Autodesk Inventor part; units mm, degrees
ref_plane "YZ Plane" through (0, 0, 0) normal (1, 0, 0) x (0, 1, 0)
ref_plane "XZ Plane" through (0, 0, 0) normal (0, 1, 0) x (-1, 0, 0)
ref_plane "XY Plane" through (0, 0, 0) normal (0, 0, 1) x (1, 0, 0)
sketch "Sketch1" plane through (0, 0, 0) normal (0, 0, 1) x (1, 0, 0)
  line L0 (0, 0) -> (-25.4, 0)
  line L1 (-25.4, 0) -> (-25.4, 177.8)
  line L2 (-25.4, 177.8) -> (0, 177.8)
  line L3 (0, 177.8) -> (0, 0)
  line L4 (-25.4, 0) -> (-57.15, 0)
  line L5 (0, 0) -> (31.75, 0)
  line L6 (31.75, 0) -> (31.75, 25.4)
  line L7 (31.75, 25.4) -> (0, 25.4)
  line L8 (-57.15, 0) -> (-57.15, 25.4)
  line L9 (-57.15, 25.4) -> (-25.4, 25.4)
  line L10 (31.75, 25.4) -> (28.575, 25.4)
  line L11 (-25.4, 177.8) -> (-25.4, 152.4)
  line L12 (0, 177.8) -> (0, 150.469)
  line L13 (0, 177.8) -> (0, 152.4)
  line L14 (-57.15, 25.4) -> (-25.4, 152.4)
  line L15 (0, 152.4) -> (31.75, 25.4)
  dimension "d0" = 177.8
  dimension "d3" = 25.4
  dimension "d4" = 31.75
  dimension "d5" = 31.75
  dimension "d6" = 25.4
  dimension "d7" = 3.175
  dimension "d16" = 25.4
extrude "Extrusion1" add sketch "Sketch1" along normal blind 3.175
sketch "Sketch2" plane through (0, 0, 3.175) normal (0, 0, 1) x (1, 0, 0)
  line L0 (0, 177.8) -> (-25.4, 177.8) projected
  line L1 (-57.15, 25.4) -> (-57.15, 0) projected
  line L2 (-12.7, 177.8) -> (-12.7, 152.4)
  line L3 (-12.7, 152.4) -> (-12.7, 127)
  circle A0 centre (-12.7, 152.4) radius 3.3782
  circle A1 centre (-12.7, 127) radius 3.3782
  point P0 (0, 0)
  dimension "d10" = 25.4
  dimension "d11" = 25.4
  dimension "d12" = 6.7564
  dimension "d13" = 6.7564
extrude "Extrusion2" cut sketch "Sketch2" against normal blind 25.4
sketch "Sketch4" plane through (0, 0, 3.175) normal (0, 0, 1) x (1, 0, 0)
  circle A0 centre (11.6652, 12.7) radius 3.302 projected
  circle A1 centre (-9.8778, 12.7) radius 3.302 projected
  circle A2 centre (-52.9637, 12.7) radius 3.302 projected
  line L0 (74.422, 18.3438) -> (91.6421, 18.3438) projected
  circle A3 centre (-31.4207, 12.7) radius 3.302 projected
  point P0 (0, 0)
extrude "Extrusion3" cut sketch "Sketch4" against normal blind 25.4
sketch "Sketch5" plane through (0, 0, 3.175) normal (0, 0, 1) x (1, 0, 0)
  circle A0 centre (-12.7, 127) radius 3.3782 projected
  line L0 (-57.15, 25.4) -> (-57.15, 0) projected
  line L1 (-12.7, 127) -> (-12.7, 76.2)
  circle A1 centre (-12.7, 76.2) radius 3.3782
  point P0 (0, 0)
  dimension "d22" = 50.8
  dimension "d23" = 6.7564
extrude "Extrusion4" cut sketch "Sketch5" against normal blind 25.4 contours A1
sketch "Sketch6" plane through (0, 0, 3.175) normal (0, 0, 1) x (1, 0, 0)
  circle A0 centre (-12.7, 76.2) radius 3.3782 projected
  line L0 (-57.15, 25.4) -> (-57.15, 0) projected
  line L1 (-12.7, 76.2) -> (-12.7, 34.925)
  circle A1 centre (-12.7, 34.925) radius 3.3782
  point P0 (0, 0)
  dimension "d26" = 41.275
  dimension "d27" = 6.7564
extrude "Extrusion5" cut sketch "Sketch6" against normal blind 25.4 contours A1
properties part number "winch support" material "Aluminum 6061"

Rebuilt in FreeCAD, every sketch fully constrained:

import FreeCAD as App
import Part
import Sketcher

V = App.Vector
Q = App.Units.Quantity


def add_polygon(sketch, points):
    """Adds a closed chain of lines whose ends are joined by coincident constraints."""
    first, n = sketch.GeometryCount, len(points)
    for a, b in zip(points, points[1:] + points[:1]):
        sketch.addGeometry(Part.LineSegment(App.Vector(*a, 0), App.Vector(*b, 0)), False)
    for i in range(n):
        sketch.addConstraint(Sketcher.Constraint("Coincident", first + i, 2, first + (i + 1) % n, 1))

doc = App.newDocument("Part")
body = doc.addObject("PartDesign::Body", "Body")

# Sketch on XY plane
sketch1 = doc.addObject("Sketcher::SketchObject", "Sketch")
body.addObject(sketch1)
sketch1.AttachmentSupport = (doc.XY_Plane, [""])
sketch1.MapMode = "FlatFace"
add_polygon(sketch1, [(31.75, 0), (31.75, 25.4), (0, 152.4), (0, 177.8), (-25.4, 177.8), (-25.4, 152.4), (-57.15, 25.4), (-57.15, 0)])  # lines 0-7
sketch1.addConstraint([
    Sketcher.Constraint("Vertical", 0),
    Sketcher.Constraint("Vertical", 2),
    Sketcher.Constraint("Horizontal", 3),
    Sketcher.Constraint("Vertical", 4),
    Sketcher.Constraint("Vertical", 6),
    Sketcher.Constraint("Horizontal", 7),
    Sketcher.Constraint("PointOnObject", 1, 2, -2),
    Sketcher.Constraint("PointOnObject", 6, 2, -1),
    Sketcher.Constraint("Horizontal", 1, 2, 4, 2),
    Sketcher.Constraint("Horizontal", 0, 2, 5, 2),
    Sketcher.Constraint("Equal", 3, 0),
    Sketcher.Constraint("Equal", 0, 2),
    Sketcher.Constraint("Equal", 1, 5),
    Sketcher.Constraint("DistanceX", 3, 2, 3, 1, Q("1 in")),
    Sketcher.Constraint("DistanceY", -1, 1, 2, 2, Q("7 in")),
    Sketcher.Constraint("DistanceX", -1, 1, 0, 2, Q("1.25 in")),
])
pad1 = doc.addObject("PartDesign::Pad", "Pad")
body.addObject(pad1)
pad1.Profile = sketch1
pad1.Length = Q("0.125 in")

# Sketch on XY plane
sketch2 = doc.addObject("Sketcher::SketchObject", "Sketch001")
body.addObject(sketch2)
sketch2.AttachmentSupport = (doc.XY_Plane, [""])
sketch2.MapMode = "FlatFace"
sketch2.AttachmentOffset = App.Placement(V(0, 0, 0.125 * 25.4), App.Rotation())
sketch2.addGeometry([
    Part.Circle(V(-12.7, 152.4, 0), V(0, 0, 1), 3.3782),
    Part.Circle(V(-12.7, 127, 0), V(0, 0, 1), 3.3782),
], False)
sketch2.addConstraint([
    Sketcher.Constraint("Equal", 0, 1),
    Sketcher.Constraint("Vertical", 0, 3, 1, 3),
    Sketcher.Constraint("Diameter", 0, Q("0.266 in")),
    Sketcher.Constraint("DistanceY", 1, 3, 0, 3, Q("1 in")),
    Sketcher.Constraint("DistanceY", -1, 1, 0, 3, Q("6 in")),
    Sketcher.Constraint("DistanceX", 0, 3, -1, 1, Q("0.5 in")),
])
pocket1 = doc.addObject("PartDesign::Pocket", "Pocket")
body.addObject(pocket1)
pocket1.Profile = sketch2
pocket1.Length = Q("1 in")

# Sketch on XY plane
sketch3 = doc.addObject("Sketcher::SketchObject", "Sketch002")
body.addObject(sketch3)
sketch3.AttachmentSupport = (doc.XY_Plane, [""])
sketch3.MapMode = "FlatFace"
sketch3.AttachmentOffset = App.Placement(V(0, 0, 0.125 * 25.4), App.Rotation())
sketch3.addGeometry([
    Part.Circle(V(11.6652, 12.7, 0), V(0, 0, 1), 3.302),
    Part.Circle(V(-9.8778, 12.7, 0), V(0, 0, 1), 3.302),
    Part.Circle(V(-52.9637, 12.7, 0), V(0, 0, 1), 3.302),
    Part.Circle(V(-31.4207, 12.7, 0), V(0, 0, 1), 3.302),
], False)
sketch3.addConstraint([
    Sketcher.Constraint("Equal", 0, 1),
    Sketcher.Constraint("Equal", 1, 2),
    Sketcher.Constraint("Equal", 2, 3),
    Sketcher.Constraint("Horizontal", 0, 3, 1, 3),
    Sketcher.Constraint("Horizontal", 1, 3, 2, 3),
    Sketcher.Constraint("Horizontal", 2, 3, 3, 3),
    Sketcher.Constraint("Diameter", 0, Q("0.26 in")),
    Sketcher.Constraint("DistanceY", -1, 1, 0, 3, Q("0.5 in")),
    Sketcher.Constraint("DistanceX", 1, 3, -1, 1, Q("0.3889 in")),
    Sketcher.Constraint("DistanceX", 2, 3, 1, 3, Q("1.6963 in")),
    Sketcher.Constraint("DistanceX", 3, 3, 0, 3, Q("1.6963 in")),
    Sketcher.Constraint("DistanceX", -1, 1, 0, 3, Q("11.6652 mm")),
])
pocket2 = doc.addObject("PartDesign::Pocket", "Pocket001")
body.addObject(pocket2)
pocket2.Profile = sketch3
pocket2.Length = Q("1 in")

# Sketch on XY plane
sketch4 = doc.addObject("Sketcher::SketchObject", "Sketch003")
body.addObject(sketch4)
sketch4.AttachmentSupport = (doc.XY_Plane, [""])
sketch4.MapMode = "FlatFace"
sketch4.AttachmentOffset = App.Placement(V(0, 0, 0.125 * 25.4), App.Rotation())
sketch4.addGeometry(Part.Circle(V(-12.7, 76.2, 0), V(0, 0, 1), 3.3782), False)
sketch4.addConstraint([
    Sketcher.Constraint("Diameter", 0, Q("0.266 in")),
    Sketcher.Constraint("DistanceY", -1, 1, 0, 3, Q("3 in")),
    Sketcher.Constraint("DistanceX", 0, 3, -1, 1, Q("0.5 in")),
])
pocket3 = doc.addObject("PartDesign::Pocket", "Pocket002")
body.addObject(pocket3)
pocket3.Profile = sketch4
pocket3.Length = Q("1 in")

# Sketch on XY plane
sketch5 = doc.addObject("Sketcher::SketchObject", "Sketch004")
body.addObject(sketch5)
sketch5.AttachmentSupport = (doc.XY_Plane, [""])
sketch5.MapMode = "FlatFace"
sketch5.AttachmentOffset = App.Placement(V(0, 0, 0.125 * 25.4), App.Rotation())
sketch5.addGeometry(Part.Circle(V(-12.7, 34.925, 0), V(0, 0, 1), 3.3782), False)
sketch5.addConstraint([
    Sketcher.Constraint("Diameter", 0, Q("0.266 in")),
    Sketcher.Constraint("DistanceX", 0, 3, -1, 1, Q("0.5 in")),
    Sketcher.Constraint("DistanceY", -1, 1, 0, 3, Q("1.375 in")),
])
pocket4 = doc.addObject("PartDesign::Pocket", "Pocket003")
body.addObject(pocket4)
pocket4.Profile = sketch5
pocket4.Length = Q("1 in")

doc.recompute()
